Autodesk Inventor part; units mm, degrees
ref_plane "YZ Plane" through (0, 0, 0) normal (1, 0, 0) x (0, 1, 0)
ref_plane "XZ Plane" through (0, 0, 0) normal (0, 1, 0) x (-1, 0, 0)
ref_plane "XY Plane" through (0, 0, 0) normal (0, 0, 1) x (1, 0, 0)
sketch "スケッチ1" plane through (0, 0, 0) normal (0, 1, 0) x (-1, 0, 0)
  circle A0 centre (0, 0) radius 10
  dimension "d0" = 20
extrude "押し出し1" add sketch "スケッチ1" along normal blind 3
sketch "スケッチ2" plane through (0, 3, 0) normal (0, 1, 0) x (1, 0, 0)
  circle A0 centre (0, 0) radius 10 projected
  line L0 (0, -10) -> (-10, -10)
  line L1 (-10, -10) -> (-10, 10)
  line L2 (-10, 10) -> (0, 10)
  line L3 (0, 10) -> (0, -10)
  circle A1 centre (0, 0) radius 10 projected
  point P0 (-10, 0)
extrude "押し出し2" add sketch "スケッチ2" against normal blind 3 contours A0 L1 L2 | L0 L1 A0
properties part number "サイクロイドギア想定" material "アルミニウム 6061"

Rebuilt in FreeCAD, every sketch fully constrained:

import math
import FreeCAD as App
import Part
import Sketcher

doc = App.newDocument("Part")
body = doc.addObject("PartDesign::Body", "Body")

sketch1 = body.newObject("Sketcher::SketchObject", "Sketch")
sketch1.AttachmentSupport = (doc.getObject("XZ_Plane"), [""])
sketch1.MapMode = "FlatFace"
sketch1.addGeometry(Part.Circle(App.Vector(0, 0, 0), App.Vector(0, 0, 1), 10), False)
sketch1.addConstraint([
    Sketcher.Constraint("Coincident", 0, 3, -1, 1),
    Sketcher.Constraint("Diameter", 0, 20.0),
])
pad1 = body.newObject("PartDesign::Pad", "Pad")
pad1.Profile = sketch1
pad1.Length = 3
pad1.Reversed = True

sketch2 = body.newObject("Sketcher::SketchObject", "Sketch001")
sketch2.AttachmentSupport = (doc.getObject("XZ_Plane"), [""])
sketch2.MapMode = "FlatFace"
sketch2.AttachmentOffset = App.Placement(App.Vector(0, 0, -3), App.Rotation())
sketch2.addGeometry([
    Part.ArcOfCircle(Part.Circle(App.Vector(0, 0, 0), App.Vector(0, 0, 1), 10), math.radians(180), math.radians(270)),
    Part.LineSegment(App.Vector(0, -10, 0), App.Vector(-10, -10, 0)),
    Part.LineSegment(App.Vector(-10, -10, 0), App.Vector(-10, 0, 0)),
    Part.LineSegment(App.Vector(-10, 10, 0), App.Vector(0, 10, 0)),
    Part.ArcOfCircle(Part.Circle(App.Vector(0, 0, 0), App.Vector(0, 0, 1), 10), math.radians(90), math.radians(180)),
    Part.LineSegment(App.Vector(-10, 0, 0), App.Vector(-10, 10, 0)),
], False)
sketch2.addConstraint([
    Sketcher.Constraint("Tangent", 0, 2, 1, 1),
    Sketcher.Constraint("Coincident", 1, 2, 2, 1),
    Sketcher.Constraint("Tangent", 2, 2, 0, 1),
    Sketcher.Constraint("Tangent", 3, 2, 4, 1),
    Sketcher.Constraint("Tangent", 4, 2, 5, 1),
    Sketcher.Constraint("Coincident", 5, 2, 3, 1),
    Sketcher.Constraint("Horizontal", 1),
    Sketcher.Constraint("Vertical", 2),
    Sketcher.Constraint("Horizontal", 3),
    Sketcher.Constraint("Vertical", 5),
    Sketcher.Constraint("Coincident", 0, 3, -1, 1),
    Sketcher.Constraint("Coincident", 4, 3, -1, 1),
    Sketcher.Constraint("Equal", 0, 4),
    Sketcher.Constraint("Radius", 0, 10.0),
])
pad2 = body.newObject("PartDesign::Pad", "Pad001")
pad2.Profile = sketch2
pad2.Length = 3

doc.recompute()
